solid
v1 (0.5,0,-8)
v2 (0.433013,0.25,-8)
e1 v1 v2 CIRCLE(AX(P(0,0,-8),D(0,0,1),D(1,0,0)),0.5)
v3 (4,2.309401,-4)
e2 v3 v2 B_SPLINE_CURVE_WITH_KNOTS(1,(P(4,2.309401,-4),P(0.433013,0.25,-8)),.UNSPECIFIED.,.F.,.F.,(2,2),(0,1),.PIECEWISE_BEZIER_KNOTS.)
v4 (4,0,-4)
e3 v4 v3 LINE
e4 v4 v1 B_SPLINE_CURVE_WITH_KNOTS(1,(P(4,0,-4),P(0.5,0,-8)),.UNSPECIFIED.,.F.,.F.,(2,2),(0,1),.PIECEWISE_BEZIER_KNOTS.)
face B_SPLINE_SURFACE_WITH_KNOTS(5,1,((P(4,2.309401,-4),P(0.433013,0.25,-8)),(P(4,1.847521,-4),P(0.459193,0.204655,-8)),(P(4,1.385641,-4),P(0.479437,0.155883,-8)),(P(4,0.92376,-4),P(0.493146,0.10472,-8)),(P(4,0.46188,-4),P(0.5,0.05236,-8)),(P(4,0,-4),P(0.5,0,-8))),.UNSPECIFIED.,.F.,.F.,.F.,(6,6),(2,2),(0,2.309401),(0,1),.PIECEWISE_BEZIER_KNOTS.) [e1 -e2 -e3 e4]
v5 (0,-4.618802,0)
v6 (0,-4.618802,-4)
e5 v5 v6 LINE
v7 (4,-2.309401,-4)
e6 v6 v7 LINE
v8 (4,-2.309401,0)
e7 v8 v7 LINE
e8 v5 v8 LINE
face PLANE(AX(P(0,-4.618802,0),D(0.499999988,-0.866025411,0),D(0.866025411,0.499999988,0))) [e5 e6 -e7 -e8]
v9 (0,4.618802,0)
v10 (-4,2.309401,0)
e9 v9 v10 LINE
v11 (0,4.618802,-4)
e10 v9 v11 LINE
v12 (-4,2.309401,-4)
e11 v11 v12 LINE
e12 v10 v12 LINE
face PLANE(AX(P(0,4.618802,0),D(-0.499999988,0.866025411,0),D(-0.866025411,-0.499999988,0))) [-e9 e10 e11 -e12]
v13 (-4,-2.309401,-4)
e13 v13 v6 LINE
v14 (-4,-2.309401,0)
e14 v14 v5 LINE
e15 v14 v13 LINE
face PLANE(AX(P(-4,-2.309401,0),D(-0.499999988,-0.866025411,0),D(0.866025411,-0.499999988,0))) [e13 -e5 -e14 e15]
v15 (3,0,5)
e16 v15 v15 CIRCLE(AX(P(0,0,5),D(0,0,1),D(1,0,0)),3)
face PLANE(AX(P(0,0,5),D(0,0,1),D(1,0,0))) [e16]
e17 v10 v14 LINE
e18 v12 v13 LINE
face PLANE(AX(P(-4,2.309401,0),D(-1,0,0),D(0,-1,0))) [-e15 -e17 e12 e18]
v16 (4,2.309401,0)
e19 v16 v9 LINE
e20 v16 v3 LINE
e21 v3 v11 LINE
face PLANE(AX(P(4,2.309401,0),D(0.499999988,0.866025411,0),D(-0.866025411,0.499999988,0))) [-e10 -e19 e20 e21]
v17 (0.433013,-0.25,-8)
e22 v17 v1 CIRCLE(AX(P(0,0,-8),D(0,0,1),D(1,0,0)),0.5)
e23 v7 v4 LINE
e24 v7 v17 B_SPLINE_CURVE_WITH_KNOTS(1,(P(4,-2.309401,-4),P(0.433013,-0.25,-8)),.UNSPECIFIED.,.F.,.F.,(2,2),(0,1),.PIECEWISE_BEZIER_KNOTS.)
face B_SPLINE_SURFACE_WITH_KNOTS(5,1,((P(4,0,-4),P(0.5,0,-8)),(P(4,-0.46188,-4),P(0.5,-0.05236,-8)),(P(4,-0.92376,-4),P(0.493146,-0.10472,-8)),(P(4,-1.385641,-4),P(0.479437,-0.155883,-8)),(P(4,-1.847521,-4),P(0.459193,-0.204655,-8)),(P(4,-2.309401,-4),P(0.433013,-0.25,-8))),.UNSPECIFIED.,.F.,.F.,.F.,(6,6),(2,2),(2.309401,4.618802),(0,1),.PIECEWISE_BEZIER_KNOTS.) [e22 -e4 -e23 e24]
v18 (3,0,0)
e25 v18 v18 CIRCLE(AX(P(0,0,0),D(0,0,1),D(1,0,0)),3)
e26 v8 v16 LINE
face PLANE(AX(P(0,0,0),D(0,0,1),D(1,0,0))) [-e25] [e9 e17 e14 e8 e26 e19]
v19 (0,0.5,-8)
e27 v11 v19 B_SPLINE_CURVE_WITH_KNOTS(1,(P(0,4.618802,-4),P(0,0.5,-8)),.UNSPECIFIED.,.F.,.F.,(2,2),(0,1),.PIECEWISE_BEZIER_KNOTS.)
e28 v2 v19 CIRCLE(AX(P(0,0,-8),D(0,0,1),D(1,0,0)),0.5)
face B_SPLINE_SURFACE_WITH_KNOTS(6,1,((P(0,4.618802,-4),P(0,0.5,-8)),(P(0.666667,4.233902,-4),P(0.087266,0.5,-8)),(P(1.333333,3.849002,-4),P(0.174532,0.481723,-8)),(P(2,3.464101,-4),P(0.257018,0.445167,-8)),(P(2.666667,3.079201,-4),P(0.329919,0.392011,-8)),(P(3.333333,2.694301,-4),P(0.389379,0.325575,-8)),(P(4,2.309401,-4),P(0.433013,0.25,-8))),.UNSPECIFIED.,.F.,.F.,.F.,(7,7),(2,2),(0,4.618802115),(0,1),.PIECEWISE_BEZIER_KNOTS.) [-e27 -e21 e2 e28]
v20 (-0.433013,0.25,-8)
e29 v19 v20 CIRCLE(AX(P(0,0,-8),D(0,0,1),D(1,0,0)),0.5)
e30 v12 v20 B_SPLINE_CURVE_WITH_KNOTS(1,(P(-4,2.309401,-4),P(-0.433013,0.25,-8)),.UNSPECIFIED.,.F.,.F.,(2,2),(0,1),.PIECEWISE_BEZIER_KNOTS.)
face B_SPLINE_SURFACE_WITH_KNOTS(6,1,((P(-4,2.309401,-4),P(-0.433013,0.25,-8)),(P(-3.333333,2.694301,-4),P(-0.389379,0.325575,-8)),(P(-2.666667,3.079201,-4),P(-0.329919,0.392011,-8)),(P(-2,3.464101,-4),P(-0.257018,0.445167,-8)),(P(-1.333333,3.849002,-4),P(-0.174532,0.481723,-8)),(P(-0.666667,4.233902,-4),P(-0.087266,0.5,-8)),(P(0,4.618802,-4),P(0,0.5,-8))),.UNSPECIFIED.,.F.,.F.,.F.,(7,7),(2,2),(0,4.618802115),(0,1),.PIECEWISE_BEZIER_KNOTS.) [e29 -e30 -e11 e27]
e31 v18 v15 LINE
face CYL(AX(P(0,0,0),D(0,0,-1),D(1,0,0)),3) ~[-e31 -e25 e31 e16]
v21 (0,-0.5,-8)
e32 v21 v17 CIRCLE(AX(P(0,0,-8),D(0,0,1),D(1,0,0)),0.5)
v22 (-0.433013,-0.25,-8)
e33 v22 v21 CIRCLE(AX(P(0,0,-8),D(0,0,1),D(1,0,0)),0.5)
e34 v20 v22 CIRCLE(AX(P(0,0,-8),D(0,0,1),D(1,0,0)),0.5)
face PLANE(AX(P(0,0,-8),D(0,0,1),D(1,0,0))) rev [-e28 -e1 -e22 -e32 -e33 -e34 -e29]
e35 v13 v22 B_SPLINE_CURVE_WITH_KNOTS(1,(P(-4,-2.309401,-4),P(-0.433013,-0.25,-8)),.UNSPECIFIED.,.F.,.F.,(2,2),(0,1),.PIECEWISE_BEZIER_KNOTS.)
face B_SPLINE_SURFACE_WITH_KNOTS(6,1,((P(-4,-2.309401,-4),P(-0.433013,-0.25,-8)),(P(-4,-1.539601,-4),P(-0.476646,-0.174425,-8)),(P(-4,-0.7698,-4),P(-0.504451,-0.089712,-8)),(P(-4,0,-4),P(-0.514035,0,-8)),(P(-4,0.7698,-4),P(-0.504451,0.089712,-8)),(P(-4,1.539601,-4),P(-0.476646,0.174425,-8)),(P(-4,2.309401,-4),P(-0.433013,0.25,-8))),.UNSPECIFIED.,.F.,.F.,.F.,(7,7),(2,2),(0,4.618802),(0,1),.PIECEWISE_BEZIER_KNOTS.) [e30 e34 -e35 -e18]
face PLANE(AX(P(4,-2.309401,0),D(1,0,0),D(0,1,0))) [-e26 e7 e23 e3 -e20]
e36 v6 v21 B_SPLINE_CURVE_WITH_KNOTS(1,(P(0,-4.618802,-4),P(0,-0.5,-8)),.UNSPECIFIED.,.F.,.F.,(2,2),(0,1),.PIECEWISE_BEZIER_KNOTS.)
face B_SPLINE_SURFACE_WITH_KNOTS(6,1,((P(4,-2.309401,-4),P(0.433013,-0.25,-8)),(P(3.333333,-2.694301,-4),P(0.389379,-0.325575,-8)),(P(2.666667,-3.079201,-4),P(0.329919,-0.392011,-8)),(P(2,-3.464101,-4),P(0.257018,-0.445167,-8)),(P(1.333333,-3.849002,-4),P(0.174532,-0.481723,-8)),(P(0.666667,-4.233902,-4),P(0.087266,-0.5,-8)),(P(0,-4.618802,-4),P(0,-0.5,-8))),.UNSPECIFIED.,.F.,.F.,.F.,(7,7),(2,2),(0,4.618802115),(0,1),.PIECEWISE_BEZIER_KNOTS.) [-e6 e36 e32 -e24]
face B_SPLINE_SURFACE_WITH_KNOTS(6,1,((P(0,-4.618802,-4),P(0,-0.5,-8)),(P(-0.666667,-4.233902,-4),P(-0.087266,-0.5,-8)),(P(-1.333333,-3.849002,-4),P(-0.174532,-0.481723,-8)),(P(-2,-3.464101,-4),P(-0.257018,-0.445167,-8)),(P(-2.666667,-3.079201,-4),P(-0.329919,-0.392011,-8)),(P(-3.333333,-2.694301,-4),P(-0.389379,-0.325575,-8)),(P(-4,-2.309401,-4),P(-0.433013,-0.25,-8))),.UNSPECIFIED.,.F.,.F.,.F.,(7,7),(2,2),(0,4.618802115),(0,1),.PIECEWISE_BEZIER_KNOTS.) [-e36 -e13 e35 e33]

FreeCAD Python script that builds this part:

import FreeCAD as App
import Part
import Sketcher

V = App.Vector
Q = App.Units.Quantity


def add_polygon(sketch, points):
    """Adds a closed chain of lines whose ends are joined by coincident constraints."""
    first, n = sketch.GeometryCount, len(points)
    for a, b in zip(points, points[1:] + points[:1]):
        sketch.addGeometry(Part.LineSegment(App.Vector(*a, 0), App.Vector(*b, 0)), False)
    for i in range(n):
        sketch.addConstraint(Sketcher.Constraint("Coincident", first + i, 2, first + (i + 1) % n, 1))

doc = App.newDocument("Part")
body = doc.addObject("PartDesign::Body", "Body")

sketch1 = body.newObject("Sketcher::SketchObject", "Sketch")
sketch1.AttachmentSupport = (doc.getObject("XY_Plane"), [""])
sketch1.MapMode = "FlatFace"
sketch1.addGeometry(Part.Circle(V(0, 0, 0), V(0, 0, 1), 3), False)
sketch1.addConstraint([
    Sketcher.Constraint("Coincident", 0, 3, -1, 1),
    Sketcher.Constraint("Diameter", 0, Q("6 mm")),
])
pad1 = body.newObject("PartDesign::Pad", "Pad")
pad1.Profile = sketch1
pad1.Length = 5

sketch2 = body.newObject("Sketcher::SketchObject", "Sketch001")
sketch2.AttachmentSupport = (doc.getObject("XY_Plane"), [""])
sketch2.MapMode = "FlatFace"
add_polygon(sketch2, [(4, -2.3), (4, 2.3), (0, 4.6), (-4, 2.3), (-4, -2.3), (0, -4.6)])
sketch2.addConstraint([
    Sketcher.Constraint("Vertical", 0),
    Sketcher.Constraint("Vertical", 3),
    Sketcher.Constraint("Symmetric", 0, 2, 3, 2, -1, 1),
    Sketcher.Constraint("Symmetric", 1, 2, 4, 2, -1, 1),
    Sketcher.Constraint("PointOnObject", 1, 2, -2),
    Sketcher.Constraint("Parallel", 2, 5),
    Sketcher.Constraint("Horizontal", 0, 2, 2, 2),
    Sketcher.Constraint("Angle", 1, Q("150.000001 deg")),
    Sketcher.Constraint("DistanceX", -1, 1, 0, 2, Q("4 mm")),
    Sketcher.Constraint("DistanceY", 0, 1, 0, 2, Q("4.618802 mm")),
])
pad2 = body.newObject("PartDesign::Pad", "Pad001")
pad2.Profile = sketch2
pad2.Length = 4
pad2.Reversed = True

sketch3 = body.newObject("Sketcher::SketchObject", "Sketch002")
sketch3.AttachmentSupport = (doc.getObject("XY_Plane"), [""])
sketch3.MapMode = "FlatFace"
sketch3.AttachmentOffset = App.Placement(V(0, 0, -4), App.Rotation())
add_polygon(sketch3, [(4, 2.3), (4, -2.3), (0, -4.6), (-4, -2.3), (-4, 2.3), (0, 4.6)])
sketch3.addConstraint([
    Sketcher.Constraint("Vertical", 0),
    Sketcher.Constraint("Vertical", 3),
    Sketcher.Constraint("Symmetric", 0, 2, 3, 2, -1, 1),
    Sketcher.Constraint("Symmetric", 1, 2, 4, 2, -1, 1),
    Sketcher.Constraint("PointOnObject", 1, 2, -2),
    Sketcher.Constraint("Parallel", 2, 5),
    Sketcher.Constraint("Horizontal", 0, 2, 2, 2),
    Sketcher.Constraint("Angle", 1, Q("-150.000001 deg")),
    Sketcher.Constraint("DistanceX", -1, 1, 0, 2, Q("4 mm")),
    Sketcher.Constraint("DistanceY", 0, 2, 0, 1, Q("4.618802 mm")),
])

sketch4 = body.newObject("Sketcher::SketchObject", "Sketch003")
sketch4.AttachmentSupport = (doc.getObject("XY_Plane"), [""])
sketch4.MapMode = "FlatFace"
sketch4.AttachmentOffset = App.Placement(V(0, 0, -8), App.Rotation())
sketch4.addGeometry(Part.Circle(V(0, 0, 0), V(0, 0, 1), 0.5), False)
sketch4.addConstraint([
    Sketcher.Constraint("Coincident", 0, 3, -1, 1),
    Sketcher.Constraint("Diameter", 0, Q("1 mm")),
])

additiveloft = body.newObject("PartDesign::AdditiveLoft", "AdditiveLoft")
additiveloft.Profile = sketch3
additiveloft.Sections = [sketch4]

doc.recompute()
